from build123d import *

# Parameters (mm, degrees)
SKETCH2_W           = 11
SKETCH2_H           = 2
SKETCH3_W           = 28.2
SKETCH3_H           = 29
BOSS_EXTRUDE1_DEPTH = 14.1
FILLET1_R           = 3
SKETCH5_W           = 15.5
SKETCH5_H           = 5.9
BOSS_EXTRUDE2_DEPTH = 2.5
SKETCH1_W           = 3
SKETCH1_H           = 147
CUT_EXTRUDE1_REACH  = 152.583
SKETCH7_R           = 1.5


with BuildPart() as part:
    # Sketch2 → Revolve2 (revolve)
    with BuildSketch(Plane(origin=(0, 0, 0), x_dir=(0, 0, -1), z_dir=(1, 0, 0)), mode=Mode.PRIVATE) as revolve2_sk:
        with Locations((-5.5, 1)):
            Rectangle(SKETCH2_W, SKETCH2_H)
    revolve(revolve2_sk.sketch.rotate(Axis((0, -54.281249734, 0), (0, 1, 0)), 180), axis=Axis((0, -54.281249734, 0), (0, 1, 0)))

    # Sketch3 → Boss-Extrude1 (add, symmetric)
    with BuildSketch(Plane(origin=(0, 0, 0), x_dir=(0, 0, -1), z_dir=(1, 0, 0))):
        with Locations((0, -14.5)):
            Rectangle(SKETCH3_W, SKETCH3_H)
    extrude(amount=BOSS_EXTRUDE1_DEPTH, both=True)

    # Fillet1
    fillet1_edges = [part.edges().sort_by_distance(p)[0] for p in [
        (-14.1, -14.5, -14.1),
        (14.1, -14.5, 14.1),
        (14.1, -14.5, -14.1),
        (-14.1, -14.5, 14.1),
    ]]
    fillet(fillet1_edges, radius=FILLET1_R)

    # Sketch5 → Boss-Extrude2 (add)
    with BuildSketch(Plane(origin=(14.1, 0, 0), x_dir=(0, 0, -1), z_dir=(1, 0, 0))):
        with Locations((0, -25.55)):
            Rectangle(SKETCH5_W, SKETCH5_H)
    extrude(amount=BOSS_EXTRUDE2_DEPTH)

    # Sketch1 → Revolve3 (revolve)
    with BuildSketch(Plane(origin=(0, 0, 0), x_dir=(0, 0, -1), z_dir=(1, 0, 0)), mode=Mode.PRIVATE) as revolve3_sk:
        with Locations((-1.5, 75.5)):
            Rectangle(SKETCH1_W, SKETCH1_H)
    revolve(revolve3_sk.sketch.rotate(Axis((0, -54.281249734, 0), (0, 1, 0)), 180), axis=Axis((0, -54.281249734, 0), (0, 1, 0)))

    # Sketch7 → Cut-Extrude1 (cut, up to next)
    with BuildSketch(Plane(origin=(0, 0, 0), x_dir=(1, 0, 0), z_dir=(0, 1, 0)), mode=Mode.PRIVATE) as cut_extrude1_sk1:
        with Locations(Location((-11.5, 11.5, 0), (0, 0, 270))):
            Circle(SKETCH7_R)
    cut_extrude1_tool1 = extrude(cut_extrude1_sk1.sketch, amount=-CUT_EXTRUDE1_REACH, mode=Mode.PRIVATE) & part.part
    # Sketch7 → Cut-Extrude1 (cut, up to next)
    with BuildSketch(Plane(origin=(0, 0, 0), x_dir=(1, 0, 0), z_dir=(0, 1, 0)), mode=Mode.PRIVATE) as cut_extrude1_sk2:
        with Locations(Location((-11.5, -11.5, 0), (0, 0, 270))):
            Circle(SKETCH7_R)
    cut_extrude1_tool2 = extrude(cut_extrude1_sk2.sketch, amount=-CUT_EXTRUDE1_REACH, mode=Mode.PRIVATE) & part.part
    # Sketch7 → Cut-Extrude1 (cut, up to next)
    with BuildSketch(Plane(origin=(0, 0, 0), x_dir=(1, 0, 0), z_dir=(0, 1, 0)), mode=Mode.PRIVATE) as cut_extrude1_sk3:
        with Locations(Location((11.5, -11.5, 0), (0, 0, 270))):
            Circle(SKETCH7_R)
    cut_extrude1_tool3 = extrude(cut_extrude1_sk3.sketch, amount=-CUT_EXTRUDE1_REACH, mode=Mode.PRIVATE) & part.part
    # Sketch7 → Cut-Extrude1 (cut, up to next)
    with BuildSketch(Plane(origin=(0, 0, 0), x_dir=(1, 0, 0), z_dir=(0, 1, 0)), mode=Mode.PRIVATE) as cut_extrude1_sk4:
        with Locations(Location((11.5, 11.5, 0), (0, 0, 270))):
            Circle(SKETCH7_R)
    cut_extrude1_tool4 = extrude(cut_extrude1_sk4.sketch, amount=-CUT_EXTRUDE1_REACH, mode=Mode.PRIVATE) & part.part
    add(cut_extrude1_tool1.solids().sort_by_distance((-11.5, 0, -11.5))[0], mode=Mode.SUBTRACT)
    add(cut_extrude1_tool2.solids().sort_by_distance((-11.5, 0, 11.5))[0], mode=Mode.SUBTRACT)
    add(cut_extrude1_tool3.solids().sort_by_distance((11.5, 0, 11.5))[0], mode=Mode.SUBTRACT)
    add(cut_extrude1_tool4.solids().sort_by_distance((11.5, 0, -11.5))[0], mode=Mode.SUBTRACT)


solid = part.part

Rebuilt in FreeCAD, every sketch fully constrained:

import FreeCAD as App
import Part
import Sketcher

V = App.Vector


def edges_at(feature, points):
    """Names of the edges that pass closest to the given points."""
    edges = feature.Shape.Edges
    near = lambda p: min(range(len(edges)), key=lambda i: edges[i].distToShape(Part.Vertex(*p))[0])
    return sorted({f"Edge{near(p) + 1}" for p in points})


def add_polygon(sketch, points):
    """Adds a closed chain of lines whose ends are joined by coincident constraints."""
    first, n = sketch.GeometryCount, len(points)
    for a, b in zip(points, points[1:] + points[:1]):
        sketch.addGeometry(Part.LineSegment(App.Vector(*a, 0), App.Vector(*b, 0)), False)
    for i in range(n):
        sketch.addConstraint(Sketcher.Constraint("Coincident", first + i, 2, first + (i + 1) % n, 1))

doc = App.newDocument("Part")
body = doc.addObject("PartDesign::Body", "Body")

# Sketch on YZ plane
sketch1 = body.newObject("Sketcher::SketchObject", "Sketch")
sketch1.AttachmentSupport = (doc.getObject("YZ_Plane"), [""])
sketch1.MapMode = "FlatFace"
add_polygon(sketch1, [(2, 11), (0, 11), (0, 0), (2, 0)])  # lines 0-3
sketch1.addConstraint([
    Sketcher.Constraint("Horizontal", 0),
    Sketcher.Constraint("Vertical", 1),
    Sketcher.Constraint("Horizontal", 2),
    Sketcher.Constraint("Vertical", 3),
    Sketcher.Constraint("Coincident", 1, 2, -1, 1),
    Sketcher.Constraint("DistanceX", 0, 2, 0, 1, 2.0),
    Sketcher.Constraint("DistanceY", 1, 2, 1, 1, 11.0),
])
revolution = body.newObject("PartDesign::Revolution", "Revolution")
revolution.Profile = sketch1
revolution.ReferenceAxis = (sketch1, ["H_Axis"])
revolution.Angle = 360

# Sketch on YZ plane
sketch2 = body.newObject("Sketcher::SketchObject", "Sketch001")
sketch2.AttachmentSupport = (doc.getObject("YZ_Plane"), [""])
sketch2.MapMode = "FlatFace"
add_polygon(sketch2, [(0, 14.1), (-29, 14.1), (-29, -14.1), (0, -14.1)])  # lines 0-3
sketch2.addConstraint([
    Sketcher.Constraint("Horizontal", 0),
    Sketcher.Constraint("Vertical", 1),
    Sketcher.Constraint("Horizontal", 2),
    Sketcher.Constraint("Vertical", 3),
    Sketcher.Constraint("Symmetric", 2, 2, 3, 2, -1, 1),
    Sketcher.Constraint("DistanceX", 0, 2, 0, 1, 29.0),
    Sketcher.Constraint("DistanceY", 1, 2, 1, 1, 28.2),
])
pad1 = body.newObject("PartDesign::Pad", "Pad")
pad1.Profile = sketch2
pad1.Length = 28.2
pad1.Midplane = True
doc.recompute()

fillet = body.newObject("PartDesign::Fillet", "Fillet")
fillet.Base = (pad1, edges_at(pad1, [
    (-14.1, -14.5, -14.1),
    (14.1, -14.5, 14.1),
    (14.1, -14.5, -14.1),
    (-14.1, -14.5, 14.1),
]))
fillet.Radius = 3

# Sketch on YZ plane
sketch3 = body.newObject("Sketcher::SketchObject", "Sketch002")
sketch3.AttachmentSupport = (doc.getObject("YZ_Plane"), [""])
sketch3.MapMode = "FlatFace"
sketch3.AttachmentOffset = App.Placement(V(0, 0, 14.1), App.Rotation())
add_polygon(sketch3, [(-22.6, 7.75), (-28.5, 7.75), (-28.5, -7.75), (-22.6, -7.75)])  # lines 0-3
sketch3.addConstraint([
    Sketcher.Constraint("Horizontal", 0),
    Sketcher.Constraint("Vertical", 1),
    Sketcher.Constraint("Horizontal", 2),
    Sketcher.Constraint("Vertical", 3),
    Sketcher.Constraint("DistanceX", 0, 2, 0, 1, 5.9),
    Sketcher.Constraint("DistanceY", 1, 2, 1, 1, 15.5),
    Sketcher.Constraint("DistanceX", 0, 2, -1, 1, 28.5),
    Sketcher.Constraint("DistanceY", -1, 1, 0, 2, 7.75),
])
pad2 = body.newObject("PartDesign::Pad", "Pad001")
pad2.Profile = sketch3
pad2.Length = 2.5

# Sketch on YZ plane
sketch4 = body.newObject("Sketcher::SketchObject", "Sketch003")
sketch4.AttachmentSupport = (doc.getObject("YZ_Plane"), [""])
sketch4.MapMode = "FlatFace"
add_polygon(sketch4, [(149, 3), (2, 3), (2, 0), (149, 0)])  # lines 0-3
sketch4.addConstraint([
    Sketcher.Constraint("Horizontal", 0),
    Sketcher.Constraint("Vertical", 1),
    Sketcher.Constraint("Horizontal", 2),
    Sketcher.Constraint("Vertical", 3),
    Sketcher.Constraint("PointOnObject", 1, 2, -1),
    Sketcher.Constraint("DistanceX", 0, 2, 0, 1, 147.0),
    Sketcher.Constraint("DistanceY", 1, 2, 1, 1, 3.0),
    Sketcher.Constraint("DistanceX", -1, 1, 0, 2, 2.0),
])
revolution2 = body.newObject("PartDesign::Revolution", "Revolution001")
revolution2.Profile = sketch4
revolution2.ReferenceAxis = (sketch4, ["H_Axis"])
revolution2.Angle = 360

# Sketch on XZ plane
sketch5 = body.newObject("Sketcher::SketchObject", "Sketch004")
sketch5.AttachmentSupport = (doc.getObject("XZ_Plane"), [""])
sketch5.MapMode = "FlatFace"
sketch5.addGeometry(Part.Circle(V(-11.5, -11.5, 0), V(0, 0, 1), 1.5), False)
sketch5.addConstraint([
    Sketcher.Constraint("Diameter", 0, 3.0),
    Sketcher.Constraint("DistanceX", 0, 3, -1, 1, 11.5),
    Sketcher.Constraint("DistanceY", 0, 3, -1, 1, 11.5),
])
pocket1 = body.newObject("PartDesign::Pocket", "Pocket")
pocket1.Profile = sketch5
pocket1.Type = "UpToFirst"
pocket1.Reversed = True

# Sketch on XZ plane
sketch6 = body.newObject("Sketcher::SketchObject", "Sketch005")
sketch6.AttachmentSupport = (doc.getObject("XZ_Plane"), [""])
sketch6.MapMode = "FlatFace"
sketch6.addGeometry(Part.Circle(V(-11.5, 11.5, 0), V(0, 0, 1), 1.5), False)
sketch6.addConstraint([
    Sketcher.Constraint("Diameter", 0, 3.0),
    Sketcher.Constraint("DistanceX", 0, 3, -1, 1, 11.5),
    Sketcher.Constraint("DistanceY", -1, 1, 0, 3, 11.5),
])
pocket2 = body.newObject("PartDesign::Pocket", "Pocket001")
pocket2.Profile = sketch6
pocket2.Type = "UpToFirst"
pocket2.Reversed = True

# Sketch on XZ plane
sketch7 = body.newObject("Sketcher::SketchObject", "Sketch006")
sketch7.AttachmentSupport = (doc.getObject("XZ_Plane"), [""])
sketch7.MapMode = "FlatFace"
sketch7.addGeometry(Part.Circle(V(11.5, 11.5, 0), V(0, 0, 1), 1.5), False)
sketch7.addConstraint([
    Sketcher.Constraint("Diameter", 0, 3.0),
    Sketcher.Constraint("DistanceX", -1, 1, 0, 3, 11.5),
    Sketcher.Constraint("DistanceY", -1, 1, 0, 3, 11.5),
])
pocket3 = body.newObject("PartDesign::Pocket", "Pocket002")
pocket3.Profile = sketch7
pocket3.Type = "UpToFirst"
pocket3.Reversed = True

# Sketch on XZ plane
sketch8 = body.newObject("Sketcher::SketchObject", "Sketch007")
sketch8.AttachmentSupport = (doc.getObject("XZ_Plane"), [""])
sketch8.MapMode = "FlatFace"
sketch8.addGeometry(Part.Circle(V(11.5, -11.5, 0), V(0, 0, 1), 1.5), False)
sketch8.addConstraint([
    Sketcher.Constraint("Diameter", 0, 3.0),
    Sketcher.Constraint("DistanceX", -1, 1, 0, 3, 11.5),
    Sketcher.Constraint("DistanceY", 0, 3, -1, 1, 11.5),
])
pocket4 = body.newObject("PartDesign::Pocket", "Pocket003")
pocket4.Profile = sketch8
pocket4.Type = "UpToFirst"
pocket4.Reversed = True

doc.recompute()
